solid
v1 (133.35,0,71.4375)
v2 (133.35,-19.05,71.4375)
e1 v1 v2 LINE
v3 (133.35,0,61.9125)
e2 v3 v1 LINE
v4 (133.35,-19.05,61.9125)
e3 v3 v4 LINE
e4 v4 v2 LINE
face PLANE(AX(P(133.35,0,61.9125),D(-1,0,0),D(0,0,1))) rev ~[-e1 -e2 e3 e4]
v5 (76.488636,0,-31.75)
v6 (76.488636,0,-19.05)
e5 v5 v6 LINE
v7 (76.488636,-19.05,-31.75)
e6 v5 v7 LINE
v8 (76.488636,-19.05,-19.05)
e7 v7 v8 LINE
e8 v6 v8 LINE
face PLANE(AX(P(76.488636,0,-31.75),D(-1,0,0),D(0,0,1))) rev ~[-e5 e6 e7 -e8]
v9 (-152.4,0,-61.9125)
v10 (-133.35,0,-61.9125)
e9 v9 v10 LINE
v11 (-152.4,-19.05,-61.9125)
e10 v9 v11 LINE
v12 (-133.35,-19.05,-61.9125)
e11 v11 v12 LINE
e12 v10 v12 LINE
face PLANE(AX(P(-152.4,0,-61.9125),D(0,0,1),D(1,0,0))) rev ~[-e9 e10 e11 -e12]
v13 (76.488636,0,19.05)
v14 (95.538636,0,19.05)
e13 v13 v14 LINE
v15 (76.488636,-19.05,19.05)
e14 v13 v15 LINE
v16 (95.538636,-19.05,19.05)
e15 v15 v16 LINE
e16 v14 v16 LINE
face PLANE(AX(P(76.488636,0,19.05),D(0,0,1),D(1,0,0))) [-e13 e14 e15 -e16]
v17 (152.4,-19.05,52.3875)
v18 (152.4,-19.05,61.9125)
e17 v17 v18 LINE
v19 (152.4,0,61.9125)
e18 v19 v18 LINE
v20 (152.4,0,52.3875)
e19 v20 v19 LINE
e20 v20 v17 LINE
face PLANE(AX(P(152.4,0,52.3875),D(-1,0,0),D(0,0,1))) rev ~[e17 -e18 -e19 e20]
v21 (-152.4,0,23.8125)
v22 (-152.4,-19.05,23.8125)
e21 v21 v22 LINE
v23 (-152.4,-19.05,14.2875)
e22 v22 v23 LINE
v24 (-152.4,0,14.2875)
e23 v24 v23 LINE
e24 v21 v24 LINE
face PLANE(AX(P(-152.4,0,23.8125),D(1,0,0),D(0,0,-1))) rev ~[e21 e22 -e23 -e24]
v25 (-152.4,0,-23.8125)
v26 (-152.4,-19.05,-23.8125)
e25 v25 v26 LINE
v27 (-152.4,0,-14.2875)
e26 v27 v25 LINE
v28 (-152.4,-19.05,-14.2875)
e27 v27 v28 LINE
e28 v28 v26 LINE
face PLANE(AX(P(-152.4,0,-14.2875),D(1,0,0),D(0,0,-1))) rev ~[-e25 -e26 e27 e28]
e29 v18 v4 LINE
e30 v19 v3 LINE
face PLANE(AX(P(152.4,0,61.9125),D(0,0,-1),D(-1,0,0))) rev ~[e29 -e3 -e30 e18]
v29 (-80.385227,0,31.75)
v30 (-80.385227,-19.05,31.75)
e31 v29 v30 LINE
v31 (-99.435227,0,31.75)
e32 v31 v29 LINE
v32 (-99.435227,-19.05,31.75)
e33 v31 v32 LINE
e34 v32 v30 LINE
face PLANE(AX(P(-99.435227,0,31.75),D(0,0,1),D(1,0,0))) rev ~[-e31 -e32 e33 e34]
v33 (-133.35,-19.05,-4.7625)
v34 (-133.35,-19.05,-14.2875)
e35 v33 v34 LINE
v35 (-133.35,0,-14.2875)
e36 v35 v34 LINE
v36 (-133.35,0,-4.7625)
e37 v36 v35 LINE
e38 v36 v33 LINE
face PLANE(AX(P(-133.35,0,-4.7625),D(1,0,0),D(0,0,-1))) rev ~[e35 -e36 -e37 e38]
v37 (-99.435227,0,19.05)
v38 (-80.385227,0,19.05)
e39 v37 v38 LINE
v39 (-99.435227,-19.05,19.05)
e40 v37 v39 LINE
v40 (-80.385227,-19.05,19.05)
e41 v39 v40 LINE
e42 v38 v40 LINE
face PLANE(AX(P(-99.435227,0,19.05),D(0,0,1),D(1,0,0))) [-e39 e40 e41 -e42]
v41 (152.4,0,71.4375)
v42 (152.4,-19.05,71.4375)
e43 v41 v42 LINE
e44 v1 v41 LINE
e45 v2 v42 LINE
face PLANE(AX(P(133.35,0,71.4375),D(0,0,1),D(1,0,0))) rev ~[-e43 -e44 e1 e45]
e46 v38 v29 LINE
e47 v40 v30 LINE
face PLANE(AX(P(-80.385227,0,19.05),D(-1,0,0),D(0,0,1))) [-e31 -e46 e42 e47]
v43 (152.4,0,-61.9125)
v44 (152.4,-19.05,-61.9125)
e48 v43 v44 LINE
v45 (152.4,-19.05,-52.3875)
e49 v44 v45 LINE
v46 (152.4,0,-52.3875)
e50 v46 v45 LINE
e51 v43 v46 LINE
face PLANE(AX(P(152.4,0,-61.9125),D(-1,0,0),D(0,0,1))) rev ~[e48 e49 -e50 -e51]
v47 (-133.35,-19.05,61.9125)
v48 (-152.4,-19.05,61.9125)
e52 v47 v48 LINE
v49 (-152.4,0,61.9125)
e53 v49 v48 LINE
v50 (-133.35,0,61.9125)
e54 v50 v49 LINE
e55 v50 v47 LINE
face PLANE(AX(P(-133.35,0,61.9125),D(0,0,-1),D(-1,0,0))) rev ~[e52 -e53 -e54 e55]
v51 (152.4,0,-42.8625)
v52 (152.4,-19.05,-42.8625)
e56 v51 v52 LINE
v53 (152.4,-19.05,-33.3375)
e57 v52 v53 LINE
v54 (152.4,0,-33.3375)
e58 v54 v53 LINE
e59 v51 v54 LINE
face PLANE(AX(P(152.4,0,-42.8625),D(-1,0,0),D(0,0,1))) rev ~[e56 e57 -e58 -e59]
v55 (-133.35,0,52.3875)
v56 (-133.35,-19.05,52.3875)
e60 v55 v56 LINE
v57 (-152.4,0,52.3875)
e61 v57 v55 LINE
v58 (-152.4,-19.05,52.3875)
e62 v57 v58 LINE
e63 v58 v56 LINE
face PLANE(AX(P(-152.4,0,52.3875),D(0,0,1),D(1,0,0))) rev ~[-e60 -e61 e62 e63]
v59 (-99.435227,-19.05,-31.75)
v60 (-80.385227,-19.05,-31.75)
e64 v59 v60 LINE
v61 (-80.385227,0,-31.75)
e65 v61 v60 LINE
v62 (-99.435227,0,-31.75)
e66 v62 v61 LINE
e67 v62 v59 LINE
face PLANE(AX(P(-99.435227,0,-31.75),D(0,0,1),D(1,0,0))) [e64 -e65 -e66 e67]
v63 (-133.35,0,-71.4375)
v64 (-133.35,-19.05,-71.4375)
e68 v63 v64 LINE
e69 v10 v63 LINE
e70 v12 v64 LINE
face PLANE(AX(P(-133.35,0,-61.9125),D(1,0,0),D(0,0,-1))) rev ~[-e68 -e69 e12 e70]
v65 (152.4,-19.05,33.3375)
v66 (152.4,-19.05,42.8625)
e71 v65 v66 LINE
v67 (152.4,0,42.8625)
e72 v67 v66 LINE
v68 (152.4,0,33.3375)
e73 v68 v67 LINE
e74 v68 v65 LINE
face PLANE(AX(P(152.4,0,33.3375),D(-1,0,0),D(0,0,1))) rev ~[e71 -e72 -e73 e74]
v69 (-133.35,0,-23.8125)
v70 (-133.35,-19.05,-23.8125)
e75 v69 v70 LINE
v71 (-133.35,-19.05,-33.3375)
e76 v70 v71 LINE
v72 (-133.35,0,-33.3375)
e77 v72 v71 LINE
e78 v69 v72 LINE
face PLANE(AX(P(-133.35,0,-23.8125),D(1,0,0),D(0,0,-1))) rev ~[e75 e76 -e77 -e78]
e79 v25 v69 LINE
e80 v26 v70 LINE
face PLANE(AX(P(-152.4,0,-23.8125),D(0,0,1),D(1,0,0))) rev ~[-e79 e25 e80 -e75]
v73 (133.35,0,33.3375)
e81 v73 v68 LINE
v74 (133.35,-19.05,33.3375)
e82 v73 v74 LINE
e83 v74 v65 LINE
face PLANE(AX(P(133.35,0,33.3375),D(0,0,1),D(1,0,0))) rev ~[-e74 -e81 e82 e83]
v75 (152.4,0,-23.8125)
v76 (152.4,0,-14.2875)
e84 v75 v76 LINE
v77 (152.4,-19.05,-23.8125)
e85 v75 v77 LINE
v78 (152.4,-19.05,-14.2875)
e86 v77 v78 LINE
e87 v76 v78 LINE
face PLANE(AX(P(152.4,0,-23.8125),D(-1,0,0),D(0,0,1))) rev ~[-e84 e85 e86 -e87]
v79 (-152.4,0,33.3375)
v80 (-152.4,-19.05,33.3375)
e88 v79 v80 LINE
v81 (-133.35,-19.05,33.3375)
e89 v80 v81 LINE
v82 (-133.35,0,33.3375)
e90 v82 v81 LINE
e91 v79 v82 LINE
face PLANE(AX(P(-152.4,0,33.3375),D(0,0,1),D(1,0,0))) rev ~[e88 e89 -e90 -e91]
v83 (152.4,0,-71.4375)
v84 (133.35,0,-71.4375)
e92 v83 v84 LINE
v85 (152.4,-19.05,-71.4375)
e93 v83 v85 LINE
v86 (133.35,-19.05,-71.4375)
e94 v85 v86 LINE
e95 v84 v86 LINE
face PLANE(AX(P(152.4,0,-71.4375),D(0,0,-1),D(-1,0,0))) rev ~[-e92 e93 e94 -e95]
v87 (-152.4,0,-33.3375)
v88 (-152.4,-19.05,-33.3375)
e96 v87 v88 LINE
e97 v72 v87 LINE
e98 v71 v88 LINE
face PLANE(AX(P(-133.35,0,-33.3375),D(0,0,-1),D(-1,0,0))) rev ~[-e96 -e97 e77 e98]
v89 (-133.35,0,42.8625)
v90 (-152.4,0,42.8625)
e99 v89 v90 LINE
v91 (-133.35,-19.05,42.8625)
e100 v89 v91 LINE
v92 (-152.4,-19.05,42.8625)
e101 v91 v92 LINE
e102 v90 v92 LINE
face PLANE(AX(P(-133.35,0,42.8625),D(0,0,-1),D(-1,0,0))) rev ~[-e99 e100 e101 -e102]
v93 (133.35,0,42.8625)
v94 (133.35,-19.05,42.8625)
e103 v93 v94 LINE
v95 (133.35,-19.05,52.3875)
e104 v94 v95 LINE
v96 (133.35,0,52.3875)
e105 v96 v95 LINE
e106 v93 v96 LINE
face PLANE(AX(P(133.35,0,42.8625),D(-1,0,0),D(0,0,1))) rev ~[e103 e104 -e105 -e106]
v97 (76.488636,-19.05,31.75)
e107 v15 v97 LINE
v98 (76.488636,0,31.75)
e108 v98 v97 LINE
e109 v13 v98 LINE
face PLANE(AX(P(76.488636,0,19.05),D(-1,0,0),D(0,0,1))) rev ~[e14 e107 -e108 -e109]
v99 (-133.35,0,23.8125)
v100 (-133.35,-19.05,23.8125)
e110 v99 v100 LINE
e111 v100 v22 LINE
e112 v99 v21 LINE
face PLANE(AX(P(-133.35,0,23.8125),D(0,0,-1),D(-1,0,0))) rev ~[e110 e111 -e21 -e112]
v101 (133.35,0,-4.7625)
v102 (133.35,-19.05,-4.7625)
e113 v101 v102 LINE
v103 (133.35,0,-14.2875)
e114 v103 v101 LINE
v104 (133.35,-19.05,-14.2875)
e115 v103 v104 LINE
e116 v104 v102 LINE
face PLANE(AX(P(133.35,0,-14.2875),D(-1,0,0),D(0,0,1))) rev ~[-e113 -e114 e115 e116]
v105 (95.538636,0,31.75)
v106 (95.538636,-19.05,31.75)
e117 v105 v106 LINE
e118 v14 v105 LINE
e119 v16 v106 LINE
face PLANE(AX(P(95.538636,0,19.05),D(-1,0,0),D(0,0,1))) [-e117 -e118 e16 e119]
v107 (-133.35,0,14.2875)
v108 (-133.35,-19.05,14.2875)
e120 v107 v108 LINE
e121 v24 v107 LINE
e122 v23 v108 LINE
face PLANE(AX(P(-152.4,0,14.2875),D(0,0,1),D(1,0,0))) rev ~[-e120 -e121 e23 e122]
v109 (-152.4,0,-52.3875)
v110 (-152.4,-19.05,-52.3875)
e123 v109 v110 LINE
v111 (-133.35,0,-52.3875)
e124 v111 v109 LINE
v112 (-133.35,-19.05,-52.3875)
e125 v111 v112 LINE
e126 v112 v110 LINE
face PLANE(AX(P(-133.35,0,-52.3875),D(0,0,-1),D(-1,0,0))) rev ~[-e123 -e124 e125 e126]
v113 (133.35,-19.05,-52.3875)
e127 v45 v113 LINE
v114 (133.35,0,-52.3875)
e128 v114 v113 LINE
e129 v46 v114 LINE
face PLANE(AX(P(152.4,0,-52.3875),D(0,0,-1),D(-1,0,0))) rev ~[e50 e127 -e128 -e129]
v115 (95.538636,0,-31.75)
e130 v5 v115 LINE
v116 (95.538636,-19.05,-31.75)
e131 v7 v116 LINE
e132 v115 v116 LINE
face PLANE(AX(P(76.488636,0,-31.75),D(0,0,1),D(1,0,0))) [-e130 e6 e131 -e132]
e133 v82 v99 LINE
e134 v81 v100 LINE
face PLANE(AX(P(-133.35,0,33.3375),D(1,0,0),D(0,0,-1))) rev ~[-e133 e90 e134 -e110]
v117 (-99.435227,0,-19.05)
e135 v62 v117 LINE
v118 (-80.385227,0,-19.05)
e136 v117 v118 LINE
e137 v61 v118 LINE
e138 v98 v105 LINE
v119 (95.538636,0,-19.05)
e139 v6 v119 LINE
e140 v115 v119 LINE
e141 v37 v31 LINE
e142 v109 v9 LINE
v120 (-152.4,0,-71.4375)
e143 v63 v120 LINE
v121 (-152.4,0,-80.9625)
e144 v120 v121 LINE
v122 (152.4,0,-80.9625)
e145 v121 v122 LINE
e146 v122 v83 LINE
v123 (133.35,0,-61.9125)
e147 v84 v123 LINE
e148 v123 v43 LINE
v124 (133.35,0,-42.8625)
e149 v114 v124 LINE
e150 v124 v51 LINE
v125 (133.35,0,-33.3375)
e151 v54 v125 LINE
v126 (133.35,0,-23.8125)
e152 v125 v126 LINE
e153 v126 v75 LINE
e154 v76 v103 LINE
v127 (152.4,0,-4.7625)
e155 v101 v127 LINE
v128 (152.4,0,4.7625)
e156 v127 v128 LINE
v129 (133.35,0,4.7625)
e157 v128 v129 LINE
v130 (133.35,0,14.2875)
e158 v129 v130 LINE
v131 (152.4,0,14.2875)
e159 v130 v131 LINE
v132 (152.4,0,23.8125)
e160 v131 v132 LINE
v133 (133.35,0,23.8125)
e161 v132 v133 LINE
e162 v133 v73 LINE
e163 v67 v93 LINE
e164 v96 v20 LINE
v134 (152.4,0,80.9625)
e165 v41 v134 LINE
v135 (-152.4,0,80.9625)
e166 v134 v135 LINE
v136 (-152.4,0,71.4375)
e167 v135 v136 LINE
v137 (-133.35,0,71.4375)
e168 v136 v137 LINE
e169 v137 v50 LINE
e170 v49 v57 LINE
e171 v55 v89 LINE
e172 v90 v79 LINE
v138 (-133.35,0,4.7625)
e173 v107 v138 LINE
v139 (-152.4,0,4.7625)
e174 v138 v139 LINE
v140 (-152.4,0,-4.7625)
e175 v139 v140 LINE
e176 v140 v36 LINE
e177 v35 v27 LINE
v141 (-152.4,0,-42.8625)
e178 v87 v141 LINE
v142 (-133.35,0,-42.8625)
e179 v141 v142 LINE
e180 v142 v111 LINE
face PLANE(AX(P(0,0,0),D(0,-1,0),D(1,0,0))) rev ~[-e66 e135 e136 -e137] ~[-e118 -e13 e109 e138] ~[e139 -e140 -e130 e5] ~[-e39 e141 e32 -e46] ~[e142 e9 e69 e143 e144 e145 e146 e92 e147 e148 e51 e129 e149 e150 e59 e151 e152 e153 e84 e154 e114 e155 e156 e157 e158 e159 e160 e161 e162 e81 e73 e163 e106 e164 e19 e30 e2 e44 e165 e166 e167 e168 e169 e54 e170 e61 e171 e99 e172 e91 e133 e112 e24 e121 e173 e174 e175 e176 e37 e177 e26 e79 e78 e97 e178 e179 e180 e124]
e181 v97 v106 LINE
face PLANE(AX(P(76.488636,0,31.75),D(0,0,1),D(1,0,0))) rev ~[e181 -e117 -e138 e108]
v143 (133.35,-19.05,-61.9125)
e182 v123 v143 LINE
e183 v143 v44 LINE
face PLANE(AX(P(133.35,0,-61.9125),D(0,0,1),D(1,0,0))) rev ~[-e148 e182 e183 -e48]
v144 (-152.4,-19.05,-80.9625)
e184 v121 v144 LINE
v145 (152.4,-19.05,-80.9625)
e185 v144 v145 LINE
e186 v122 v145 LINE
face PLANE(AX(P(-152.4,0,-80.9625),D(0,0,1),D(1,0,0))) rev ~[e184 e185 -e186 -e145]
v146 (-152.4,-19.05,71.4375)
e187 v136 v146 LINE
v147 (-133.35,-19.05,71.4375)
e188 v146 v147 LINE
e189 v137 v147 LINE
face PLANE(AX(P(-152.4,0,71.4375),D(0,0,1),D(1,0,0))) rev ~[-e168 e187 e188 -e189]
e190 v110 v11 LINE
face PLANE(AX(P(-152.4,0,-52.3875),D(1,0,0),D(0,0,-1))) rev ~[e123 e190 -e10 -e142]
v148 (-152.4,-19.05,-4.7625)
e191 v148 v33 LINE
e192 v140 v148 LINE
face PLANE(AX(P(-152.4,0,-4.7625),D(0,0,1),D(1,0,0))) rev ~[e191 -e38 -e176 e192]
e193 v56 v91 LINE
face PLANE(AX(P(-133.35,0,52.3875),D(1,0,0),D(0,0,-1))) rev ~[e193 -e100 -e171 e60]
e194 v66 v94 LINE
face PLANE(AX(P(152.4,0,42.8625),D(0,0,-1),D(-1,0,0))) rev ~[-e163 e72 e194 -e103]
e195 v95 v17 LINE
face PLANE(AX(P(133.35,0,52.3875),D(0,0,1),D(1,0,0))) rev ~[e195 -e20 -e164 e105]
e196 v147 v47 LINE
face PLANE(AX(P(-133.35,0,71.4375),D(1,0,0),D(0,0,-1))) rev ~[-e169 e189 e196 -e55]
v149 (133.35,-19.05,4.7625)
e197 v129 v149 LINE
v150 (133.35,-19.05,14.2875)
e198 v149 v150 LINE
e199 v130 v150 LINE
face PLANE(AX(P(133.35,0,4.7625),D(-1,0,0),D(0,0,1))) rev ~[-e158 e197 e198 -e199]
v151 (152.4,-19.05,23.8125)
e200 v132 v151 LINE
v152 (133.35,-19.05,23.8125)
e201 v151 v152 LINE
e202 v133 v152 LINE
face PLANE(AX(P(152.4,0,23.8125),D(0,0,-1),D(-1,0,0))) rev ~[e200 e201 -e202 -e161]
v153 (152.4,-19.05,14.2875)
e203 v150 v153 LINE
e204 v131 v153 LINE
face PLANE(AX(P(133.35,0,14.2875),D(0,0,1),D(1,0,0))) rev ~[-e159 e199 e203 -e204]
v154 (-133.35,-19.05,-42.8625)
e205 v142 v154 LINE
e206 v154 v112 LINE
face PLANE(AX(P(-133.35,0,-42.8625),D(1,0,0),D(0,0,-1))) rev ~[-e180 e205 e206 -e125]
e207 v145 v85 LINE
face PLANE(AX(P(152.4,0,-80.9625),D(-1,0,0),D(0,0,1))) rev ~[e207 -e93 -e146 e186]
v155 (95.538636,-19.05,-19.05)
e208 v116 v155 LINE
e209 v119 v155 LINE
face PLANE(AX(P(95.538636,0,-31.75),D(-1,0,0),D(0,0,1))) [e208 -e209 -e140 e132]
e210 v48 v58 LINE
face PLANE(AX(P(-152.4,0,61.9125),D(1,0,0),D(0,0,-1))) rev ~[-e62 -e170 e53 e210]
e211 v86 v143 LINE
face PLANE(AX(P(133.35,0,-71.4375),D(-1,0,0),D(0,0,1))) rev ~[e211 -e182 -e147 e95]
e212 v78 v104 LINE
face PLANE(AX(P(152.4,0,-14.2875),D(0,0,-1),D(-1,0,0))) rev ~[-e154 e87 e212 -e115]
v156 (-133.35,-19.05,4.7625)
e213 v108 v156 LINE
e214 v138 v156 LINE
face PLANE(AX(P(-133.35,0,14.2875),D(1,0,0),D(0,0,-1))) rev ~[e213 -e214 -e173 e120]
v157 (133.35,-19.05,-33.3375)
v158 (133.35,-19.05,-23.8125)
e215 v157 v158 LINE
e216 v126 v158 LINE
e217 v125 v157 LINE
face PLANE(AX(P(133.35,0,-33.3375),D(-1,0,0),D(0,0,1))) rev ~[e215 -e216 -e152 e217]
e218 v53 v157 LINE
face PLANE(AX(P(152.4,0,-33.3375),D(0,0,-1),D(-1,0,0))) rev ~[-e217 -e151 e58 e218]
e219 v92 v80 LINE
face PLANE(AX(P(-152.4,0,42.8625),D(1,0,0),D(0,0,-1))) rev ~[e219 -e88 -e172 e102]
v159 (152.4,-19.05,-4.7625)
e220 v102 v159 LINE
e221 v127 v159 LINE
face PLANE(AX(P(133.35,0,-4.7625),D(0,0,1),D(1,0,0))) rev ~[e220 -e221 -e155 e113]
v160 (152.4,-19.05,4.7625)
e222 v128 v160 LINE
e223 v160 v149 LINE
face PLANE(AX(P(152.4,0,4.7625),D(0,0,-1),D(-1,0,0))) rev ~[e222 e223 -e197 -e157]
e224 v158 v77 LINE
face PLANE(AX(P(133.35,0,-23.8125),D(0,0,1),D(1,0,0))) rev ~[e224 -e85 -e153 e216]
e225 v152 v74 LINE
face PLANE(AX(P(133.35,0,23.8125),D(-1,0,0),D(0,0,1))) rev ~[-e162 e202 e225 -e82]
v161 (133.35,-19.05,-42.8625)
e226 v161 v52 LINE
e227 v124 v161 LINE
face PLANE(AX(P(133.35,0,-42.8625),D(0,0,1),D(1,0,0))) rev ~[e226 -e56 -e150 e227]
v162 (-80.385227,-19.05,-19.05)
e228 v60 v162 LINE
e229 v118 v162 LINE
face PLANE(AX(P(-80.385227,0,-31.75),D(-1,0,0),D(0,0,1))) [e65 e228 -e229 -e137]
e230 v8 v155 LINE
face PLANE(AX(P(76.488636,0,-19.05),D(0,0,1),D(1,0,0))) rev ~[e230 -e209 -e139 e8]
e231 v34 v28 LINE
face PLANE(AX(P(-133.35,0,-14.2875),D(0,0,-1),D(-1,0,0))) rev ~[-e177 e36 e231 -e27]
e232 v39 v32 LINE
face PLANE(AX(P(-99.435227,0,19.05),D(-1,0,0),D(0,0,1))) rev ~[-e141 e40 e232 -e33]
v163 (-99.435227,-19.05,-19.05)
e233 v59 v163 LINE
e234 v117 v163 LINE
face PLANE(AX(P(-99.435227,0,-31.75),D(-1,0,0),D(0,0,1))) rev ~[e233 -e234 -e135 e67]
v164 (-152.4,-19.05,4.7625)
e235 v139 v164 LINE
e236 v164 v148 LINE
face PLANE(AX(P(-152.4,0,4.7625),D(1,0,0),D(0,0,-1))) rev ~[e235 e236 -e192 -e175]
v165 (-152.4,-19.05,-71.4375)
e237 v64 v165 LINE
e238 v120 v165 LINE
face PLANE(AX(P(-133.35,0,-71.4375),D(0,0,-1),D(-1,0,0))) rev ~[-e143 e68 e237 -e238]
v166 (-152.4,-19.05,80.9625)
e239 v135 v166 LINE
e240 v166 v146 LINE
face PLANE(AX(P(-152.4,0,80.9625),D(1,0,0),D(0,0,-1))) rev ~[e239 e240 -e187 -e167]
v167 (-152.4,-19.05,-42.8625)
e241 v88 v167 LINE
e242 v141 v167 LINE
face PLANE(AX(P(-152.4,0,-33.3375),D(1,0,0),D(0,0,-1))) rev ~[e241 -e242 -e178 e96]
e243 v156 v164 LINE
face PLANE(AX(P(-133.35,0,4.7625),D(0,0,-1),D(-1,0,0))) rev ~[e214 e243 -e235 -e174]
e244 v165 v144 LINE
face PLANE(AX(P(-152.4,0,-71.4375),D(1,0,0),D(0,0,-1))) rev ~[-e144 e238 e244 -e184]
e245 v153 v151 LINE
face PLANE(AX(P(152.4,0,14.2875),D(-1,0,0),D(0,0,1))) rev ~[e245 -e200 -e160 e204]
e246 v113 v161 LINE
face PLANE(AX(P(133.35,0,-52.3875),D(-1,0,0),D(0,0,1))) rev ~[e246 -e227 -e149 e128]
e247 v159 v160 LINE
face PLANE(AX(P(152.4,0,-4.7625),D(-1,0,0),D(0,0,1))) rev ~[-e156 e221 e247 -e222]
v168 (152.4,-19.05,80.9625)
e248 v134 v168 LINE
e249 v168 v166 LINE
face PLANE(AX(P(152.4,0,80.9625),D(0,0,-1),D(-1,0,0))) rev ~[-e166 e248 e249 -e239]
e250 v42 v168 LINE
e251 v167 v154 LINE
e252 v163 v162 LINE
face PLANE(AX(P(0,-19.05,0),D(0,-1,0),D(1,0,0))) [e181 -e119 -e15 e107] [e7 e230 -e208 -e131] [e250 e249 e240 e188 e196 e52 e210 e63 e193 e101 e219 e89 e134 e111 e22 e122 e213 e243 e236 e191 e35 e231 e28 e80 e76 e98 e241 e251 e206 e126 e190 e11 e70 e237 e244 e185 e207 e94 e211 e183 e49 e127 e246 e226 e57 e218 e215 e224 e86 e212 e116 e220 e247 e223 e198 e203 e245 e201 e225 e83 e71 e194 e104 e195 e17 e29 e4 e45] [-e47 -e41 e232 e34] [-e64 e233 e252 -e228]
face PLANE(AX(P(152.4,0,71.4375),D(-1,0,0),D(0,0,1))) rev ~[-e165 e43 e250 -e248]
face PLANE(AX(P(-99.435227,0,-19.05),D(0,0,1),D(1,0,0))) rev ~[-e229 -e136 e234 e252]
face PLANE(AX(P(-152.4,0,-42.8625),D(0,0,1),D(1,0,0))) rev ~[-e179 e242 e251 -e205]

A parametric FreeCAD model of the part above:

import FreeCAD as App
import Part
import Sketcher
Q = App.Units.Quantity

doc = App.newDocument("Part")
params = doc.addObject("Spreadsheet::Sheet", "Params")
for row, (alias, value) in enumerate([
    ("sketch1_width", "12 in"),
    ("sketch1_height", "0.5 in"),
    ("sketch1_width2", "0.75 in"),
    ("sketch1_height2", "0.375 in"),
    ("pad1_length", "0.75 in"),
], start=1):
    params.set(f"A{row}", alias)
    params.set(f"B{row}", "=" + value)
    params.setAlias(f"B{row}", alias)

body = doc.addObject("PartDesign::Body", "Body")

sketch1 = body.newObject("Sketcher::SketchObject", "Sketch")
sketch1.AttachmentSupport = (doc.getObject("XZ_Plane"), [""])
sketch1.MapMode = "FlatFace"
sketch1.addGeometry(Part.LineSegment(App.Vector(-152.4, -80.9625, 0), App.Vector(152.4, -80.9625, 0)), False)
sketch1.addGeometry(Part.LineSegment(App.Vector(152.4, -80.9625, 0), App.Vector(152.4, -71.4375, 0)), False)
sketch1.addGeometry(Part.LineSegment(App.Vector(152.4, -71.4375, 0), App.Vector(133.35, -71.4375, 0)), False)
sketch1.addGeometry(Part.LineSegment(App.Vector(133.35, -71.4375, 0), App.Vector(133.35, -61.9125, 0)), False)
sketch1.addGeometry(Part.LineSegment(App.Vector(133.35, -61.9125, 0), App.Vector(152.4, -61.9125, 0)), False)
sketch1.addGeometry(Part.LineSegment(App.Vector(152.4, -61.9125, 0), App.Vector(152.4, -52.3875, 0)), False)
sketch1.addGeometry(Part.LineSegment(App.Vector(152.4, -52.3875, 0), App.Vector(133.35, -52.3875, 0)), False)
sketch1.addGeometry(Part.LineSegment(App.Vector(133.35, -52.3875, 0), App.Vector(133.35, -42.8625, 0)), False)
sketch1.addGeometry(Part.LineSegment(App.Vector(133.35, -42.8625, 0), App.Vector(152.4, -42.8625, 0)), False)
sketch1.addGeometry(Part.LineSegment(App.Vector(152.4, -42.8625, 0), App.Vector(152.4, -33.3375, 0)), False)
sketch1.addGeometry(Part.LineSegment(App.Vector(152.4, -33.3375, 0), App.Vector(133.35, -33.3375, 0)), False)
sketch1.addGeometry(Part.LineSegment(App.Vector(133.35, -33.3375, 0), App.Vector(133.35, -23.8125, 0)), False)
sketch1.addGeometry(Part.LineSegment(App.Vector(133.35, -23.8125, 0), App.Vector(152.4, -23.8125, 0)), False)
sketch1.addGeometry(Part.LineSegment(App.Vector(152.4, -23.8125, 0), App.Vector(152.4, -14.2875, 0)), False)
sketch1.addGeometry(Part.LineSegment(App.Vector(152.4, -14.2875, 0), App.Vector(133.35, -14.2875, 0)), False)
sketch1.addGeometry(Part.LineSegment(App.Vector(133.35, -14.2875, 0), App.Vector(133.35, -4.7625, 0)), False)
sketch1.addGeometry(Part.LineSegment(App.Vector(133.35, -4.7625, 0), App.Vector(152.4, -4.7625, 0)), False)
sketch1.addGeometry(Part.LineSegment(App.Vector(152.4, -4.7625, 0), App.Vector(152.4, 4.7625, 0)), False)
sketch1.addGeometry(Part.LineSegment(App.Vector(152.4, 4.7625, 0), App.Vector(133.35, 4.7625, 0)), False)
sketch1.addGeometry(Part.LineSegment(App.Vector(133.35, 4.7625, 0), App.Vector(133.35, 14.2875, 0)), False)
sketch1.addGeometry(Part.LineSegment(App.Vector(133.35, 14.2875, 0), App.Vector(152.4, 14.2875, 0)), False)
sketch1.addGeometry(Part.LineSegment(App.Vector(152.4, 14.2875, 0), App.Vector(152.4, 23.8125, 0)), False)
sketch1.addGeometry(Part.LineSegment(App.Vector(152.4, 23.8125, 0), App.Vector(133.35, 23.8125, 0)), False)
sketch1.addGeometry(Part.LineSegment(App.Vector(133.35, 23.8125, 0), App.Vector(133.35, 33.3375, 0)), False)
sketch1.addGeometry(Part.LineSegment(App.Vector(133.35, 33.3375, 0), App.Vector(152.4, 33.3375, 0)), False)
sketch1.addGeometry(Part.LineSegment(App.Vector(152.4, 33.3375, 0), App.Vector(152.4, 42.8625, 0)), False)
sketch1.addGeometry(Part.LineSegment(App.Vector(152.4, 42.8625, 0), App.Vector(133.35, 42.8625, 0)), False)
sketch1.addGeometry(Part.LineSegment(App.Vector(133.35, 42.8625, 0), App.Vector(133.35, 52.3875, 0)), False)
sketch1.addGeometry(Part.LineSegment(App.Vector(133.35, 52.3875, 0), App.Vector(152.4, 52.3875, 0)), False)
sketch1.addGeometry(Part.LineSegment(App.Vector(152.4, 52.3875, 0), App.Vector(152.4, 61.9125, 0)), False)
sketch1.addGeometry(Part.LineSegment(App.Vector(152.4, 61.9125, 0), App.Vector(133.35, 61.9125, 0)), False)
sketch1.addGeometry(Part.LineSegment(App.Vector(133.35, 61.9125, 0), App.Vector(133.35, 71.4375, 0)), False)
sketch1.addGeometry(Part.LineSegment(App.Vector(133.35, 71.4375, 0), App.Vector(152.4, 71.4375, 0)), False)
sketch1.addGeometry(Part.LineSegment(App.Vector(152.4, 71.4375, 0), App.Vector(152.4, 80.9625, 0)), False)
sketch1.addGeometry(Part.LineSegment(App.Vector(152.4, 80.9625, 0), App.Vector(-152.4, 80.9625, 0)), False)
sketch1.addGeometry(Part.LineSegment(App.Vector(-152.4, 80.9625, 0), App.Vector(-152.4, 71.4375, 0)), False)
sketch1.addGeometry(Part.LineSegment(App.Vector(-152.4, 71.4375, 0), App.Vector(-133.35, 71.4375, 0)), False)
sketch1.addGeometry(Part.LineSegment(App.Vector(-133.35, 71.4375, 0), App.Vector(-133.35, 61.9125, 0)), False)
sketch1.addGeometry(Part.LineSegment(App.Vector(-133.35, 61.9125, 0), App.Vector(-152.4, 61.9125, 0)), False)
sketch1.addGeometry(Part.LineSegment(App.Vector(-152.4, 61.9125, 0), App.Vector(-152.4, 52.3875, 0)), False)
sketch1.addGeometry(Part.LineSegment(App.Vector(-152.4, 52.3875, 0), App.Vector(-133.35, 52.3875, 0)), False)
sketch1.addGeometry(Part.LineSegment(App.Vector(-133.35, 52.3875, 0), App.Vector(-133.35, 42.8625, 0)), False)
sketch1.addGeometry(Part.LineSegment(App.Vector(-133.35, 42.8625, 0), App.Vector(-152.4, 42.8625, 0)), False)
sketch1.addGeometry(Part.LineSegment(App.Vector(-152.4, 42.8625, 0), App.Vector(-152.4, 33.3375, 0)), False)
sketch1.addGeometry(Part.LineSegment(App.Vector(-152.4, 33.3375, 0), App.Vector(-133.35, 33.3375, 0)), False)
sketch1.addGeometry(Part.LineSegment(App.Vector(-133.35, 33.3375, 0), App.Vector(-133.35, 23.8125, 0)), False)
sketch1.addGeometry(Part.LineSegment(App.Vector(-133.35, 23.8125, 0), App.Vector(-152.4, 23.8125, 0)), False)
sketch1.addGeometry(Part.LineSegment(App.Vector(-152.4, 23.8125, 0), App.Vector(-152.4, 14.2875, 0)), False)
sketch1.addGeometry(Part.LineSegment(App.Vector(-152.4, 14.2875, 0), App.Vector(-133.35, 14.2875, 0)), False)
sketch1.addGeometry(Part.LineSegment(App.Vector(-133.35, 14.2875, 0), App.Vector(-133.35, 4.7625, 0)), False)
sketch1.addGeometry(Part.LineSegment(App.Vector(-133.35, 4.7625, 0), App.Vector(-152.4, 4.7625, 0)), False)
sketch1.addGeometry(Part.LineSegment(App.Vector(-152.4, 4.7625, 0), App.Vector(-152.4, -4.7625, 0)), False)
sketch1.addGeometry(Part.LineSegment(App.Vector(-152.4, -4.7625, 0), App.Vector(-133.35, -4.7625, 0)), False)
sketch1.addGeometry(Part.LineSegment(App.Vector(-133.35, -4.7625, 0), App.Vector(-133.35, -14.2875, 0)), False)
sketch1.addGeometry(Part.LineSegment(App.Vector(-133.35, -14.2875, 0), App.Vector(-152.4, -14.2875, 0)), False)
sketch1.addGeometry(Part.LineSegment(App.Vector(-152.4, -14.2875, 0), App.Vector(-152.4, -23.8125, 0)), False)
sketch1.addGeometry(Part.LineSegment(App.Vector(-152.4, -23.8125, 0), App.Vector(-133.35, -23.8125, 0)), False)
sketch1.addGeometry(Part.LineSegment(App.Vector(-133.35, -23.8125, 0), App.Vector(-133.35, -33.3375, 0)), False)
sketch1.addGeometry(Part.LineSegment(App.Vector(-133.35, -33.3375, 0), App.Vector(-152.4, -33.3375, 0)), False)
sketch1.addGeometry(Part.LineSegment(App.Vector(-152.4, -33.3375, 0), App.Vector(-152.4, -42.8625, 0)), False)
sketch1.addGeometry(Part.LineSegment(App.Vector(-152.4, -42.8625, 0), App.Vector(-133.35, -42.8625, 0)), False)
sketch1.addGeometry(Part.LineSegment(App.Vector(-133.35, -42.8625, 0), App.Vector(-133.35, -52.3875, 0)), False)
sketch1.addGeometry(Part.LineSegment(App.Vector(-133.35, -52.3875, 0), App.Vector(-152.4, -52.3875, 0)), False)
sketch1.addGeometry(Part.LineSegment(App.Vector(-152.4, -52.3875, 0), App.Vector(-152.4, -61.9125, 0)), False)
sketch1.addGeometry(Part.LineSegment(App.Vector(-152.4, -61.9125, 0), App.Vector(-133.35, -61.9125, 0)), False)
sketch1.addGeometry(Part.LineSegment(App.Vector(-133.35, -61.9125, 0), App.Vector(-133.35, -71.4375, 0)), False)
sketch1.addGeometry(Part.LineSegment(App.Vector(-133.35, -71.4375, 0), App.Vector(-152.4, -71.4375, 0)), False)
sketch1.addGeometry(Part.LineSegment(App.Vector(-152.4, -71.4375, 0), App.Vector(-152.4, -80.9625, 0)), False)
sketch1.addGeometry(Part.LineSegment(App.Vector(-80.385227, -31.75, 0), App.Vector(-99.435227, -31.75, 0)), False)
sketch1.addGeometry(Part.LineSegment(App.Vector(-99.435227, -31.75, 0), App.Vector(-99.435227, -19.05, 0)), False)
sketch1.addGeometry(Part.LineSegment(App.Vector(-99.435227, -19.05, 0), App.Vector(-80.385227, -19.05, 0)), False)
sketch1.addGeometry(Part.LineSegment(App.Vector(-80.385227, -19.05, 0), App.Vector(-80.385227, -31.75, 0)), False)
sketch1.addGeometry(Part.LineSegment(App.Vector(95.538636, -31.75, 0), App.Vector(76.488636, -31.75, 0)), False)
sketch1.addGeometry(Part.LineSegment(App.Vector(76.488636, -31.75, 0), App.Vector(76.488636, -19.05, 0)), False)
sketch1.addGeometry(Part.LineSegment(App.Vector(76.488636, -19.05, 0), App.Vector(95.538636, -19.05, 0)), False)
sketch1.addGeometry(Part.LineSegment(App.Vector(95.538636, -19.05, 0), App.Vector(95.538636, -31.75, 0)), False)
sketch1.addGeometry(Part.LineSegment(App.Vector(-80.385227, 19.05, 0), App.Vector(-99.435227, 19.05, 0)), False)
sketch1.addGeometry(Part.LineSegment(App.Vector(-99.435227, 19.05, 0), App.Vector(-99.435227, 31.75, 0)), False)
sketch1.addGeometry(Part.LineSegment(App.Vector(-99.435227, 31.75, 0), App.Vector(-80.385227, 31.75, 0)), False)
sketch1.addGeometry(Part.LineSegment(App.Vector(-80.385227, 31.75, 0), App.Vector(-80.385227, 19.05, 0)), False)
sketch1.addGeometry(Part.LineSegment(App.Vector(95.538636, 19.05, 0), App.Vector(76.488636, 19.05, 0)), False)
sketch1.addGeometry(Part.LineSegment(App.Vector(76.488636, 19.05, 0), App.Vector(76.488636, 31.75, 0)), False)
sketch1.addGeometry(Part.LineSegment(App.Vector(76.488636, 31.75, 0), App.Vector(95.538636, 31.75, 0)), False)
sketch1.addGeometry(Part.LineSegment(App.Vector(95.538636, 31.75, 0), App.Vector(95.538636, 19.05, 0)), False)
sketch1.addConstraint(Sketcher.Constraint("Coincident", 0, 2, 1, 1))
sketch1.addConstraint(Sketcher.Constraint("Coincident", 1, 2, 2, 1))
sketch1.addConstraint(Sketcher.Constraint("Coincident", 2, 2, 3, 1))
sketch1.addConstraint(Sketcher.Constraint("Coincident", 3, 2, 4, 1))
sketch1.addConstraint(Sketcher.Constraint("Coincident", 4, 2, 5, 1))
sketch1.addConstraint(Sketcher.Constraint("Coincident", 5, 2, 6, 1))
sketch1.addConstraint(Sketcher.Constraint("Coincident", 6, 2, 7, 1))
sketch1.addConstraint(Sketcher.Constraint("Coincident", 7, 2, 8, 1))
sketch1.addConstraint(Sketcher.Constraint("Coincident", 8, 2, 9, 1))
sketch1.addConstraint(Sketcher.Constraint("Coincident", 9, 2, 10, 1))
sketch1.addConstraint(Sketcher.Constraint("Coincident", 10, 2, 11, 1))
sketch1.addConstraint(Sketcher.Constraint("Coincident", 11, 2, 12, 1))
sketch1.addConstraint(Sketcher.Constraint("Coincident", 12, 2, 13, 1))
sketch1.addConstraint(Sketcher.Constraint("Coincident", 13, 2, 14, 1))
sketch1.addConstraint(Sketcher.Constraint("Coincident", 14, 2, 15, 1))
sketch1.addConstraint(Sketcher.Constraint("Coincident", 15, 2, 16, 1))
sketch1.addConstraint(Sketcher.Constraint("Coincident", 16, 2, 17, 1))
sketch1.addConstraint(Sketcher.Constraint("Coincident", 17, 2, 18, 1))
sketch1.addConstraint(Sketcher.Constraint("Coincident", 18, 2, 19, 1))
sketch1.addConstraint(Sketcher.Constraint("Coincident", 19, 2, 20, 1))
sketch1.addConstraint(Sketcher.Constraint("Coincident", 20, 2, 21, 1))
sketch1.addConstraint(Sketcher.Constraint("Coincident", 21, 2, 22, 1))
sketch1.addConstraint(Sketcher.Constraint("Coincident", 22, 2, 23, 1))
sketch1.addConstraint(Sketcher.Constraint("Coincident", 23, 2, 24, 1))
sketch1.addConstraint(Sketcher.Constraint("Coincident", 24, 2, 25, 1))
sketch1.addConstraint(Sketcher.Constraint("Coincident", 25, 2, 26, 1))
sketch1.addConstraint(Sketcher.Constraint("Coincident", 26, 2, 27, 1))
sketch1.addConstraint(Sketcher.Constraint("Coincident", 27, 2, 28, 1))
sketch1.addConstraint(Sketcher.Constraint("Coincident", 28, 2, 29, 1))
sketch1.addConstraint(Sketcher.Constraint("Coincident", 29, 2, 30, 1))
sketch1.addConstraint(Sketcher.Constraint("Coincident", 30, 2, 31, 1))
sketch1.addConstraint(Sketcher.Constraint("Coincident", 31, 2, 32, 1))
sketch1.addConstraint(Sketcher.Constraint("Coincident", 32, 2, 33, 1))
sketch1.addConstraint(Sketcher.Constraint("Coincident", 33, 2, 34, 1))
sketch1.addConstraint(Sketcher.Constraint("Coincident", 34, 2, 35, 1))
sketch1.addConstraint(Sketcher.Constraint("Coincident", 35, 2, 36, 1))
sketch1.addConstraint(Sketcher.Constraint("Coincident", 36, 2, 37, 1))
sketch1.addConstraint(Sketcher.Constraint("Coincident", 37, 2, 38, 1))
sketch1.addConstraint(Sketcher.Constraint("Coincident", 38, 2, 39, 1))
sketch1.addConstraint(Sketcher.Constraint("Coincident", 39, 2, 40, 1))
sketch1.addConstraint(Sketcher.Constraint("Coincident", 40, 2, 41, 1))
sketch1.addConstraint(Sketcher.Constraint("Coincident", 41, 2, 42, 1))
sketch1.addConstraint(Sketcher.Constraint("Coincident", 42, 2, 43, 1))
sketch1.addConstraint(Sketcher.Constraint("Coincident", 43, 2, 44, 1))
sketch1.addConstraint(Sketcher.Constraint("Coincident", 44, 2, 45, 1))
sketch1.addConstraint(Sketcher.Constraint("Coincident", 45, 2, 46, 1))
sketch1.addConstraint(Sketcher.Constraint("Coincident", 46, 2, 47, 1))
sketch1.addConstraint(Sketcher.Constraint("Coincident", 47, 2, 48, 1))
sketch1.addConstraint(Sketcher.Constraint("Coincident", 48, 2, 49, 1))
sketch1.addConstraint(Sketcher.Constraint("Coincident", 49, 2, 50, 1))
sketch1.addConstraint(Sketcher.Constraint("Coincident", 50, 2, 51, 1))
sketch1.addConstraint(Sketcher.Constraint("Coincident", 51, 2, 52, 1))
sketch1.addConstraint(Sketcher.Constraint("Coincident", 52, 2, 53, 1))
sketch1.addConstraint(Sketcher.Constraint("Coincident", 53, 2, 54, 1))
sketch1.addConstraint(Sketcher.Constraint("Coincident", 54, 2, 55, 1))
sketch1.addConstraint(Sketcher.Constraint("Coincident", 55, 2, 56, 1))
sketch1.addConstraint(Sketcher.Constraint("Coincident", 56, 2, 57, 1))
sketch1.addConstraint(Sketcher.Constraint("Coincident", 57, 2, 58, 1))
sketch1.addConstraint(Sketcher.Constraint("Coincident", 58, 2, 59, 1))
sketch1.addConstraint(Sketcher.Constraint("Coincident", 59, 2, 60, 1))
sketch1.addConstraint(Sketcher.Constraint("Coincident", 60, 2, 61, 1))
sketch1.addConstraint(Sketcher.Constraint("Coincident", 61, 2, 62, 1))
sketch1.addConstraint(Sketcher.Constraint("Coincident", 62, 2, 63, 1))
sketch1.addConstraint(Sketcher.Constraint("Coincident", 63, 2, 64, 1))
sketch1.addConstraint(Sketcher.Constraint("Coincident", 64, 2, 65, 1))
sketch1.addConstraint(Sketcher.Constraint("Coincident", 65, 2, 66, 1))
sketch1.addConstraint(Sketcher.Constraint("Coincident", 66, 2, 67, 1))
sketch1.addConstraint(Sketcher.Constraint("Coincident", 67, 2, 0, 1))
sketch1.addConstraint(Sketcher.Constraint("Coincident", 68, 2, 69, 1))
sketch1.addConstraint(Sketcher.Constraint("Coincident", 69, 2, 70, 1))
sketch1.addConstraint(Sketcher.Constraint("Coincident", 70, 2, 71, 1))
sketch1.addConstraint(Sketcher.Constraint("Coincident", 71, 2, 68, 1))
sketch1.addConstraint(Sketcher.Constraint("Coincident", 72, 2, 73, 1))
sketch1.addConstraint(Sketcher.Constraint("Coincident", 73, 2, 74, 1))
sketch1.addConstraint(Sketcher.Constraint("Coincident", 74, 2, 75, 1))
sketch1.addConstraint(Sketcher.Constraint("Coincident", 75, 2, 72, 1))
sketch1.addConstraint(Sketcher.Constraint("Coincident", 76, 2, 77, 1))
sketch1.addConstraint(Sketcher.Constraint("Coincident", 77, 2, 78, 1))
sketch1.addConstraint(Sketcher.Constraint("Coincident", 78, 2, 79, 1))
sketch1.addConstraint(Sketcher.Constraint("Coincident", 79, 2, 76, 1))
sketch1.addConstraint(Sketcher.Constraint("Coincident", 80, 2, 81, 1))
sketch1.addConstraint(Sketcher.Constraint("Coincident", 81, 2, 82, 1))
sketch1.addConstraint(Sketcher.Constraint("Coincident", 82, 2, 83, 1))
sketch1.addConstraint(Sketcher.Constraint("Coincident", 83, 2, 80, 1))
sketch1.addConstraint(Sketcher.Constraint("Horizontal", 0))
sketch1.addConstraint(Sketcher.Constraint("Vertical", 1))
sketch1.addConstraint(Sketcher.Constraint("Horizontal", 2))
sketch1.addConstraint(Sketcher.Constraint("Vertical", 3))
sketch1.addConstraint(Sketcher.Constraint("Horizontal", 4))
sketch1.addConstraint(Sketcher.Constraint("Vertical", 5))
sketch1.addConstraint(Sketcher.Constraint("Horizontal", 6))
sketch1.addConstraint(Sketcher.Constraint("Vertical", 7))
sketch1.addConstraint(Sketcher.Constraint("Horizontal", 8))
sketch1.addConstraint(Sketcher.Constraint("Vertical", 9))
sketch1.addConstraint(Sketcher.Constraint("Horizontal", 10))
sketch1.addConstraint(Sketcher.Constraint("Vertical", 11))
sketch1.addConstraint(Sketcher.Constraint("Horizontal", 12))
sketch1.addConstraint(Sketcher.Constraint("Vertical", 13))
sketch1.addConstraint(Sketcher.Constraint("Horizontal", 14))
sketch1.addConstraint(Sketcher.Constraint("Vertical", 15))
sketch1.addConstraint(Sketcher.Constraint("Horizontal", 16))
sketch1.addConstraint(Sketcher.Constraint("Vertical", 17))
sketch1.addConstraint(Sketcher.Constraint("Horizontal", 18))
sketch1.addConstraint(Sketcher.Constraint("Vertical", 19))
sketch1.addConstraint(Sketcher.Constraint("Horizontal", 20))
sketch1.addConstraint(Sketcher.Constraint("Vertical", 21))
sketch1.addConstraint(Sketcher.Constraint("Horizontal", 22))
sketch1.addConstraint(Sketcher.Constraint("Vertical", 23))
sketch1.addConstraint(Sketcher.Constraint("Horizontal", 24))
sketch1.addConstraint(Sketcher.Constraint("Vertical", 25))
sketch1.addConstraint(Sketcher.Constraint("Horizontal", 26))
sketch1.addConstraint(Sketcher.Constraint("Vertical", 27))
sketch1.addConstraint(Sketcher.Constraint("Horizontal", 28))
sketch1.addConstraint(Sketcher.Constraint("Vertical", 29))
sketch1.addConstraint(Sketcher.Constraint("Horizontal", 30))
sketch1.addConstraint(Sketcher.Constraint("Vertical", 31))
sketch1.addConstraint(Sketcher.Constraint("Horizontal", 32))
sketch1.addConstraint(Sketcher.Constraint("Vertical", 33))
sketch1.addConstraint(Sketcher.Constraint("Horizontal", 34))
sketch1.addConstraint(Sketcher.Constraint("Vertical", 35))
sketch1.addConstraint(Sketcher.Constraint("Horizontal", 36))
sketch1.addConstraint(Sketcher.Constraint("Vertical", 37))
sketch1.addConstraint(Sketcher.Constraint("Horizontal", 38))
sketch1.addConstraint(Sketcher.Constraint("Vertical", 39))
sketch1.addConstraint(Sketcher.Constraint("Horizontal", 40))
sketch1.addConstraint(Sketcher.Constraint("Vertical", 41))
sketch1.addConstraint(Sketcher.Constraint("Horizontal", 42))
sketch1.addConstraint(Sketcher.Constraint("Vertical", 43))
sketch1.addConstraint(Sketcher.Constraint("Horizontal", 44))
sketch1.addConstraint(Sketcher.Constraint("Vertical", 45))
sketch1.addConstraint(Sketcher.Constraint("Horizontal", 46))
sketch1.addConstraint(Sketcher.Constraint("Vertical", 47))
sketch1.addConstraint(Sketcher.Constraint("Horizontal", 48))
sketch1.addConstraint(Sketcher.Constraint("Vertical", 49))
sketch1.addConstraint(Sketcher.Constraint("Horizontal", 50))
sketch1.addConstraint(Sketcher.Constraint("Vertical", 51))
sketch1.addConstraint(Sketcher.Constraint("Horizontal", 52))
sketch1.addConstraint(Sketcher.Constraint("Vertical", 53))
sketch1.addConstraint(Sketcher.Constraint("Horizontal", 54))
sketch1.addConstraint(Sketcher.Constraint("Vertical", 55))
sketch1.addConstraint(Sketcher.Constraint("Horizontal", 56))
sketch1.addConstraint(Sketcher.Constraint("Vertical", 57))
sketch1.addConstraint(Sketcher.Constraint("Horizontal", 58))
sketch1.addConstraint(Sketcher.Constraint("Vertical", 59))
sketch1.addConstraint(Sketcher.Constraint("Horizontal", 60))
sketch1.addConstraint(Sketcher.Constraint("Vertical", 61))
sketch1.addConstraint(Sketcher.Constraint("Horizontal", 62))
sketch1.addConstraint(Sketcher.Constraint("Vertical", 63))
sketch1.addConstraint(Sketcher.Constraint("Horizontal", 64))
sketch1.addConstraint(Sketcher.Constraint("Vertical", 65))
sketch1.addConstraint(Sketcher.Constraint("Horizontal", 66))
sketch1.addConstraint(Sketcher.Constraint("Vertical", 67))
sketch1.addConstraint(Sketcher.Constraint("Horizontal", 68))
sketch1.addConstraint(Sketcher.Constraint("Vertical", 69))
sketch1.addConstraint(Sketcher.Constraint("Horizontal", 70))
sketch1.addConstraint(Sketcher.Constraint("Vertical", 71))
sketch1.addConstraint(Sketcher.Constraint("Horizontal", 72))
sketch1.addConstraint(Sketcher.Constraint("Vertical", 73))
sketch1.addConstraint(Sketcher.Constraint("Horizontal", 74))
sketch1.addConstraint(Sketcher.Constraint("Vertical", 75))
sketch1.addConstraint(Sketcher.Constraint("Horizontal", 76))
sketch1.addConstraint(Sketcher.Constraint("Vertical", 77))
sketch1.addConstraint(Sketcher.Constraint("Horizontal", 78))
sketch1.addConstraint(Sketcher.Constraint("Vertical", 79))
sketch1.addConstraint(Sketcher.Constraint("Horizontal", 80))
sketch1.addConstraint(Sketcher.Constraint("Vertical", 81))
sketch1.addConstraint(Sketcher.Constraint("Horizontal", 82))
sketch1.addConstraint(Sketcher.Constraint("Vertical", 83))
sketch1.addConstraint(Sketcher.Constraint("Symmetric", 0, 2, 34, 2, -1, 1))
sketch1.addConstraint(Sketcher.Constraint("Symmetric", 2, 2, 36, 2, -1, 1))
sketch1.addConstraint(Sketcher.Constraint("Symmetric", 4, 2, 38, 2, -1, 1))
sketch1.addConstraint(Sketcher.Constraint("Symmetric", 6, 2, 40, 2, -1, 1))
sketch1.addConstraint(Sketcher.Constraint("Symmetric", 8, 2, 42, 2, -1, 1))
sketch1.addConstraint(Sketcher.Constraint("Symmetric", 10, 2, 44, 2, -1, 1))
sketch1.addConstraint(Sketcher.Constraint("Symmetric", 12, 2, 46, 2, -1, 1))
sketch1.addConstraint(Sketcher.Constraint("Symmetric", 14, 2, 48, 2, -1, 1))
sketch1.addConstraint(Sketcher.Constraint("Symmetric", 16, 2, 50, 2, -1, 1))
sketch1.addConstraint(Sketcher.Constraint("Symmetric", 18, 2, 52, 2, -1, 1))
sketch1.addConstraint(Sketcher.Constraint("Symmetric", 20, 2, 54, 2, -1, 1))
sketch1.addConstraint(Sketcher.Constraint("Symmetric", 22, 2, 56, 2, -1, 1))
sketch1.addConstraint(Sketcher.Constraint("Symmetric", 24, 2, 58, 2, -1, 1))
sketch1.addConstraint(Sketcher.Constraint("Symmetric", 26, 2, 60, 2, -1, 1))
sketch1.addConstraint(Sketcher.Constraint("Symmetric", 28, 2, 62, 2, -1, 1))
sketch1.addConstraint(Sketcher.Constraint("Symmetric", 30, 2, 64, 2, -1, 1))
sketch1.addConstraint(Sketcher.Constraint("Symmetric", 32, 2, 66, 2, -1, 1))
sketch1.addConstraint(Sketcher.Constraint("Symmetric", 32, 2, 35, 2, -2))
sketch1.addConstraint(Sketcher.Constraint("Symmetric", 30, 2, 37, 2, -2))
sketch1.addConstraint(Sketcher.Constraint("Symmetric", 28, 2, 39, 2, -2))
sketch1.addConstraint(Sketcher.Constraint("Symmetric", 26, 2, 41, 2, -2))
sketch1.addConstraint(Sketcher.Constraint("Symmetric", 24, 2, 43, 2, -2))
sketch1.addConstraint(Sketcher.Constraint("Symmetric", 22, 2, 45, 2, -2))
sketch1.addConstraint(Sketcher.Constraint("Symmetric", 20, 2, 47, 2, -2))
sketch1.addConstraint(Sketcher.Constraint("Symmetric", 18, 2, 49, 2, -2))
sketch1.addConstraint(Sketcher.Constraint("Symmetric", 69, 2, 76, 2, -1))
sketch1.addConstraint(Sketcher.Constraint("Symmetric", 71, 2, 78, 2, -1))
sketch1.addConstraint(Sketcher.Constraint("Symmetric", 73, 2, 80, 2, -1))
sketch1.addConstraint(Sketcher.Constraint("Symmetric", 75, 2, 82, 2, -1))
sketch1.addConstraint(Sketcher.Constraint("Horizontal", 71, 2, 72, 2))
sketch1.addConstraint(Sketcher.Constraint("Horizontal", 70, 2, 73, 2))
sketch1.addConstraint(Sketcher.Constraint("Vertical", 1, 2, 4, 2))
sketch1.addConstraint(Sketcher.Constraint("Vertical", 3, 2, 6, 2))
sketch1.addConstraint(Sketcher.Constraint("Vertical", 5, 2, 8, 2))
sketch1.addConstraint(Sketcher.Constraint("Vertical", 7, 2, 10, 2))
sketch1.addConstraint(Sketcher.Constraint("Vertical", 9, 2, 12, 2))
sketch1.addConstraint(Sketcher.Constraint("Vertical", 11, 2, 14, 2))
sketch1.addConstraint(Sketcher.Constraint("Vertical", 13, 2, 16, 2))
sketch1.addConstraint(Sketcher.Constraint("Equal", 66, 68))
sketch1.addConstraint(Sketcher.Constraint("Equal", 70, 72))
sketch1.addConstraint(Sketcher.Constraint("Equal", 1, 3))
sketch1.addConstraint(Sketcher.Constraint("Equal", 3, 5))
sketch1.addConstraint(Sketcher.Constraint("Equal", 5, 7))
sketch1.addConstraint(Sketcher.Constraint("Equal", 7, 9))
sketch1.addConstraint(Sketcher.Constraint("Equal", 9, 11))
sketch1.addConstraint(Sketcher.Constraint("Equal", 11, 13))
sketch1.addConstraint(Sketcher.Constraint("Equal", 13, 15))
sketch1.addConstraint(Sketcher.Constraint("Equal", 15, 17))
sketch1.addConstraint(Sketcher.Constraint("DistanceX", 0, 1, 0, 2, Q("12 in")))
sketch1.addConstraint(Sketcher.Constraint("DistanceY", 69, 1, 69, 2, Q("0.5 in")))
sketch1.addConstraint(Sketcher.Constraint("DistanceX", 2, 2, 2, 1, Q("0.75 in")))
sketch1.addConstraint(Sketcher.Constraint("DistanceY", 1, 1, 1, 2, Q("0.375 in")))
sketch1.addConstraint(Sketcher.Constraint("DistanceY", 68, 2, -1, 1, Q("1.25 in")))
sketch1.addConstraint(Sketcher.Constraint("DistanceX", 68, 2, -1, 1, Q("99.435227 mm")))
sketch1.addConstraint(Sketcher.Constraint("DistanceX", -1, 1, 72, 2, Q("76.488636 mm")))
sketch1.setExpression("Constraints[216]", "Params.sketch1_width")
sketch1.setExpression("Constraints[217]", "Params.sketch1_height")
sketch1.setExpression("Constraints[218]", "Params.sketch1_width2")
sketch1.setExpression("Constraints[219]", "Params.sketch1_height2")
pad1 = body.newObject("PartDesign::Pad", "Pad")
pad1.Profile = sketch1
pad1.setExpression("Length", "Params.pad1_length")

doc.recompute()
